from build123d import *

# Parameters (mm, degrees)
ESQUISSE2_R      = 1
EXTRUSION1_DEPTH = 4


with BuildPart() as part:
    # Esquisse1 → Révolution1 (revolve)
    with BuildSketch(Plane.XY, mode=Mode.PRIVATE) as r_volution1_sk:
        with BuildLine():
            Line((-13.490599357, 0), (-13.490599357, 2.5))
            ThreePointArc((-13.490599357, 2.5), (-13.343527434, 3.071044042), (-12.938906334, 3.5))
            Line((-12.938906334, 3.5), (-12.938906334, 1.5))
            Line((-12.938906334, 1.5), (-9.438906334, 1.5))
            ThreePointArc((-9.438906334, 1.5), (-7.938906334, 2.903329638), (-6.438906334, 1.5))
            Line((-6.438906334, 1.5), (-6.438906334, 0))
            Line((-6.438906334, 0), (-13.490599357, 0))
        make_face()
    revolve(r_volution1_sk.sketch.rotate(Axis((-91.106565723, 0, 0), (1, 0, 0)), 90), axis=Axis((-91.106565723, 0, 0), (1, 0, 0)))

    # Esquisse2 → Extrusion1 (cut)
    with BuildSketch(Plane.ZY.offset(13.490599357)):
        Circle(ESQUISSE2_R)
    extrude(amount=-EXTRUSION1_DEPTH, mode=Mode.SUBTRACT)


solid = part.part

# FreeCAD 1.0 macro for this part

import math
import FreeCAD as App
import Part
import Sketcher

V = App.Vector
Q = App.Units.Quantity

doc = App.newDocument("Part")
params = doc.addObject("Spreadsheet::Sheet", "Params")
for row, (alias, value) in enumerate([
    ("sketch1_height", "2 mm"),
    ("sketch1_width", "3.5 mm"),
    ("sketch1_height2", "2.5 mm"),
    ("sketch1_height3", "1.5 mm"),
    ("revolution_angle", "360 deg"),
    ("sketch2_diameter", "2 mm"),
    ("pocket1_length", "4 mm"),
], start=1):
    params.set(f"A{row}", alias)
    params.set(f"B{row}", "=" + value)
    params.setAlias(f"B{row}", alias)

body = doc.addObject("PartDesign::Body", "Body")

# Sketch on XY plane
sketch1 = body.newObject("Sketcher::SketchObject", "Sketch")
sketch1.AttachmentSupport = (doc.getObject("XY_Plane"), [""])
sketch1.MapMode = "FlatFace"
sketch1.addGeometry([
    Part.LineSegment(V(-13.490599, 2.5, 0), V(-13.490599, 0, 0)),  # 0
    Part.LineSegment(V(-13.490599, 0, 0), V(-6.438906, 0, 0)),  # 1
    Part.LineSegment(V(-6.438906, 0, 0), V(-6.438906, 1.5, 0)),  # 2
    Part.ArcOfCircle(Part.Circle(V(-7.938906, 1.4, 0), V(0, 0, 1), 1.50333), math.radians(3.814075), math.radians(176.185925)),  # 3
    Part.LineSegment(V(-9.438906, 1.5, 0), V(-12.938906, 1.5, 0)),  # 4
    Part.LineSegment(V(-12.938906, 1.5, 0), V(-12.938906, 3.5, 0)),  # 5
    Part.ArcOfCircle(Part.Circle(V(-12.308452, 2.5, 0), V(0, 0, 1), 1.182148), math.radians(122.22957), math.radians(180)),  # 6
], False)
sketch1.addConstraint([
    Sketcher.Constraint("Coincident", 0, 2, 1, 1),
    Sketcher.Constraint("Coincident", 1, 2, 2, 1),
    Sketcher.Constraint("Coincident", 2, 2, 3, 1),
    Sketcher.Constraint("Coincident", 3, 2, 4, 1),
    Sketcher.Constraint("Coincident", 4, 2, 5, 1),
    Sketcher.Constraint("Coincident", 5, 2, 6, 1),
    Sketcher.Constraint("Tangent", 6, 2, 0, 1),
    Sketcher.Constraint("Vertical", 0),
    Sketcher.Constraint("Horizontal", 1),
    Sketcher.Constraint("Vertical", 2),
    Sketcher.Constraint("Horizontal", 4),
    Sketcher.Constraint("Vertical", 5),
    Sketcher.Constraint("PointOnObject", 0, 2, -1),
    Sketcher.Constraint("Horizontal", 2, 2, 3, 2),
    Sketcher.Constraint("DistanceY", 5, 1, 5, 2, Q("2 mm")),
    Sketcher.Constraint("DistanceX", 4, 2, 4, 1, Q("3.5 mm")),
    Sketcher.Constraint("DistanceY", 0, 2, 0, 1, Q("2.5 mm")),
    Sketcher.Constraint("DistanceY", 2, 1, 2, 2, Q("1.5 mm")),
    Sketcher.Constraint("DistanceX", 3, 2, 2, 2, Q("3 mm")),
    Sketcher.Constraint("DistanceY", -1, 1, 3, 3, Q("1.4 mm")),
    Sketcher.Constraint("Radius", 6, Q("1.182148 mm")),
    Sketcher.Constraint("DistanceX", 0, 2, -1, 1, Q("13.490599 mm")),
])
sketch1.setExpression("Constraints[14]", "Params.sketch1_height")
sketch1.setExpression("Constraints[15]", "Params.sketch1_width")
sketch1.setExpression("Constraints[16]", "Params.sketch1_height2")
sketch1.setExpression("Constraints[17]", "Params.sketch1_height3")
revolution = body.newObject("PartDesign::Revolution", "Revolution")
revolution.Profile = sketch1
revolution.ReferenceAxis = (sketch1, ["H_Axis"])
revolution.setExpression("Angle", "Params.revolution_angle")

# Sketch on YZ plane
sketch2 = body.newObject("Sketcher::SketchObject", "Sketch001")
sketch2.AttachmentSupport = (doc.getObject("YZ_Plane"), [""])
sketch2.MapMode = "FlatFace"
sketch2.AttachmentOffset = App.Placement(V(0, 0, -13.490599), App.Rotation())
sketch2.addGeometry(Part.Circle(V(0, 0, 0), V(0, 0, 1), 1), False)
sketch2.addConstraint([
    Sketcher.Constraint("Coincident", 0, 3, -1, 1),
    Sketcher.Constraint("Diameter", 0, Q("2 mm")),
])
sketch2.setExpression("Constraints[1]", "Params.sketch2_diameter")
pocket1 = body.newObject("PartDesign::Pocket", "Pocket")
pocket1.Profile = sketch2
pocket1.setExpression("Length", "Params.pocket1_length")
pocket1.Reversed = True

doc.recompute()
